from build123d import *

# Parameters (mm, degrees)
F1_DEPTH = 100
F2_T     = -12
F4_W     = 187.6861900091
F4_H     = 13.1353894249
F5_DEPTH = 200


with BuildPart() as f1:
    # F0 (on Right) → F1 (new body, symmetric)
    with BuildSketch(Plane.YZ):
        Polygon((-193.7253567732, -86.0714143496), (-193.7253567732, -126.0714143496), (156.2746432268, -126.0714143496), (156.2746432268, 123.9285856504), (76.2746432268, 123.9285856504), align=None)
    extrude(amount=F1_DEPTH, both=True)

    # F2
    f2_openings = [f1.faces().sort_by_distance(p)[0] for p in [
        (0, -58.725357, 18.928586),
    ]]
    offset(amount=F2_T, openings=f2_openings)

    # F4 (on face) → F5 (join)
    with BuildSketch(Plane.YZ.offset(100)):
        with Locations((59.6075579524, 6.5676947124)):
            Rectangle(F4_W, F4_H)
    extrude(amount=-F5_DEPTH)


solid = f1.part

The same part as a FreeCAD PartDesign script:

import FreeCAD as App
import Part
import Sketcher

V = App.Vector
Q = App.Units.Quantity


def faces_at(feature, points):
    """Names of the faces that lie closest to the given points."""
    faces = feature.Shape.Faces
    near = lambda p: min(range(len(faces)), key=lambda i: faces[i].distToShape(Part.Vertex(*p))[0])
    return sorted({f"Face{near(p) + 1}" for p in points})

doc = App.newDocument("Part")
params = doc.addObject("Spreadsheet::Sheet", "Params")
for row, (alias, value) in enumerate([
    ("sketch1_width", "350 mm"),
    ("sketch1_width2", "80 mm"),
    ("sketch1_height", "40 mm"),
    ("sketch1_height2", "250 mm"),
    ("pad1_length", "200 mm"),
    ("thickness_wall", "12 mm"),
    ("pad2_length", "200 mm"),
], start=1):
    params.set(f"A{row}", alias)
    params.set(f"B{row}", "=" + value)
    params.setAlias(f"B{row}", alias)

body = doc.addObject("PartDesign::Body", "Body")

# Sketch on YZ plane
sketch1 = doc.addObject("Sketcher::SketchObject", "Sketch")
body.addObject(sketch1)
sketch1.AttachmentSupport = (doc.YZ_Plane, [""])
sketch1.MapMode = "FlatFace"
sketch1.addGeometry(Part.LineSegment(V(-194, -86, 0), V(-194, -126, 0)), False)
sketch1.addGeometry(Part.LineSegment(V(-194, -126, 0), V(156, -126, 0)), False)
sketch1.addGeometry(Part.LineSegment(V(156, -126, 0), V(156, 124, 0)), False)
sketch1.addGeometry(Part.LineSegment(V(156, 124, 0), V(76, 124, 0)), False)
sketch1.addGeometry(Part.LineSegment(V(76, 124, 0), V(-194, -86, 0)), False)
sketch1.addConstraint(Sketcher.Constraint("Coincident", 0, 2, 1, 1))
sketch1.addConstraint(Sketcher.Constraint("Coincident", 1, 2, 2, 1))
sketch1.addConstraint(Sketcher.Constraint("Coincident", 2, 2, 3, 1))
sketch1.addConstraint(Sketcher.Constraint("Coincident", 3, 2, 4, 1))
sketch1.addConstraint(Sketcher.Constraint("Coincident", 4, 2, 0, 1))
sketch1.addConstraint(Sketcher.Constraint("Vertical", 0))
sketch1.addConstraint(Sketcher.Constraint("Horizontal", 1))
sketch1.addConstraint(Sketcher.Constraint("Vertical", 2))
sketch1.addConstraint(Sketcher.Constraint("Horizontal", 3))
sketch1.addConstraint(Sketcher.Constraint("DistanceX", 1, 1, 1, 2, Q("350 mm")))
sketch1.addConstraint(Sketcher.Constraint("DistanceX", 3, 2, 3, 1, Q("80 mm")))
sketch1.addConstraint(Sketcher.Constraint("DistanceY", 0, 2, 0, 1, Q("40 mm")))
sketch1.addConstraint(Sketcher.Constraint("DistanceY", 2, 1, 2, 2, Q("250 mm")))
sketch1.addConstraint(Sketcher.Constraint("DistanceX", 0, 2, -1, 1, Q("193.725357 mm")))
sketch1.addConstraint(Sketcher.Constraint("DistanceY", 0, 2, -1, 1, Q("126.071414 mm")))
sketch1.setExpression("Constraints[9]", "Params.sketch1_width")
sketch1.setExpression("Constraints[10]", "Params.sketch1_width2")
sketch1.setExpression("Constraints[11]", "Params.sketch1_height")
sketch1.setExpression("Constraints[12]", "Params.sketch1_height2")
pad1 = doc.addObject("PartDesign::Pad", "Pad")
body.addObject(pad1)
pad1.Profile = sketch1
pad1.setExpression("Length", "Params.pad1_length")
pad1.Midplane = True
doc.recompute()

thickness = doc.addObject("PartDesign::Thickness", "Thickness")
body.addObject(thickness)
thickness.Base = (pad1, faces_at(pad1, [(0, -58.725, 18.929)]))
thickness.setExpression("Value", "Params.thickness_wall")
thickness.Reversed = True
thickness.Join = "Arc"

# Sketch on YZ plane
sketch2 = doc.addObject("Sketcher::SketchObject", "Sketch001")
body.addObject(sketch2)
sketch2.AttachmentSupport = (doc.YZ_Plane, [""])
sketch2.MapMode = "FlatFace"
sketch2.AttachmentOffset = App.Placement(V(0, 0, 100), App.Rotation())
sketch2.addGeometry(Part.LineSegment(V(-34, 13, 0), V(-34, 0, 0)), False)
sketch2.addGeometry(Part.LineSegment(V(-34, 0, 0), V(153, 0, 0)), False)
sketch2.addGeometry(Part.LineSegment(V(153, 0, 0), V(153, 13, 0)), False)
sketch2.addGeometry(Part.LineSegment(V(153, 13, 0), V(-34, 13, 0)), False)
sketch2.addConstraint(Sketcher.Constraint("Coincident", 0, 2, 1, 1))
sketch2.addConstraint(Sketcher.Constraint("Coincident", 1, 2, 2, 1))
sketch2.addConstraint(Sketcher.Constraint("Coincident", 2, 2, 3, 1))
sketch2.addConstraint(Sketcher.Constraint("Coincident", 3, 2, 0, 1))
sketch2.addConstraint(Sketcher.Constraint("Vertical", 0))
sketch2.addConstraint(Sketcher.Constraint("Horizontal", 1))
sketch2.addConstraint(Sketcher.Constraint("Vertical", 2))
sketch2.addConstraint(Sketcher.Constraint("Horizontal", 3))
sketch2.addConstraint(Sketcher.Constraint("PointOnObject", 0, 2, -1))
sketch2.addConstraint(Sketcher.Constraint("DistanceX", 1, 1, 1, 2, Q("187.68619 mm")))
sketch2.addConstraint(Sketcher.Constraint("DistanceY", 0, 2, 0, 1, Q("13.135389 mm")))
sketch2.addConstraint(Sketcher.Constraint("DistanceX", 0, 2, -1, 1, Q("34.235537 mm")))
pad2 = doc.addObject("PartDesign::Pad", "Pad001")
body.addObject(pad2)
pad2.Profile = sketch2
pad2.setExpression("Length", "Params.pad2_length")
pad2.Reversed = True

doc.recompute()
